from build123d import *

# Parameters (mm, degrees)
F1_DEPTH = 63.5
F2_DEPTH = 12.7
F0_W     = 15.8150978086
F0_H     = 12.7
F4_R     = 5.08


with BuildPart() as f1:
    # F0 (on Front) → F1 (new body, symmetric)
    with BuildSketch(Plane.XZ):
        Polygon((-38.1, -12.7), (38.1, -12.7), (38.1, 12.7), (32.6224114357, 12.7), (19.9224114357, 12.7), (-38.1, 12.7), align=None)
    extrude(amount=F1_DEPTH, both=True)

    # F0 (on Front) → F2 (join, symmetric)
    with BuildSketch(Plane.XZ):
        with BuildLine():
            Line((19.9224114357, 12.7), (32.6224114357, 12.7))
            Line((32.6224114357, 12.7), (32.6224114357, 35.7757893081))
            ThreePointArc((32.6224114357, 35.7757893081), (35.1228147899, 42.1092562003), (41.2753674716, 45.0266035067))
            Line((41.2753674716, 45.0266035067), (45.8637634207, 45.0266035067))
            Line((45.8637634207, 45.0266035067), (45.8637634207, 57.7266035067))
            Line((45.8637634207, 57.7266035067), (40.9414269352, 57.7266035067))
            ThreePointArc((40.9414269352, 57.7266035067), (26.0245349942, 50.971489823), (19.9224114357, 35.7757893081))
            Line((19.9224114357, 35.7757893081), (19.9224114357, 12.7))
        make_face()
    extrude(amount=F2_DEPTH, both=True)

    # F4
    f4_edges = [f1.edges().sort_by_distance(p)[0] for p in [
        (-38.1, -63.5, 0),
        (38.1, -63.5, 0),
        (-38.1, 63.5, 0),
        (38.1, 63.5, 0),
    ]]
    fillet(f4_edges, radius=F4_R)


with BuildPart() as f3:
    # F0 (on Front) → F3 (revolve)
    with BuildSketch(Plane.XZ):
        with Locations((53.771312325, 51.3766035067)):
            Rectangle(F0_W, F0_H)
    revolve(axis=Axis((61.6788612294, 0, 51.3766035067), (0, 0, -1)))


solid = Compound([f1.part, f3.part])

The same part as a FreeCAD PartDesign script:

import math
import FreeCAD as App
import Part
import Sketcher
from FreeCAD import Vector
Q = App.Units.Quantity


def edges_at(feature, points):
    """Names of the edges that pass closest to the given points."""
    edges = feature.Shape.Edges
    near = lambda p: min(range(len(edges)), key=lambda i: edges[i].distToShape(Part.Vertex(*p))[0])
    return sorted({f"Edge{near(p) + 1}" for p in points})


def add_polygon(sketch, points):
    """Adds a closed chain of lines whose ends are joined by coincident constraints."""
    first, n = sketch.GeometryCount, len(points)
    for a, b in zip(points, points[1:] + points[:1]):
        sketch.addGeometry(Part.LineSegment(App.Vector(*a, 0), App.Vector(*b, 0)), False)
    for i in range(n):
        sketch.addConstraint(Sketcher.Constraint("Coincident", first + i, 2, first + (i + 1) % n, 1))

doc = App.newDocument("Part")
body = doc.addObject("PartDesign::Body", "Body")

# Sketch on XZ plane
sketch1 = body.newObject("Sketcher::SketchObject", "Sketch")
sketch1.AttachmentSupport = (doc.getObject("XZ_Plane"), [""])
sketch1.MapMode = "FlatFace"
add_polygon(sketch1, [(-38, -13), (38, -13), (38, 13), (-38, 13)])  # lines 0-3
sketch1.addConstraint([
    Sketcher.Constraint("Horizontal", 0),
    Sketcher.Constraint("Vertical", 1),
    Sketcher.Constraint("Horizontal", 2),
    Sketcher.Constraint("Vertical", 3),
    Sketcher.Constraint("Symmetric", 0, 2, 2, 2, -1, 1),
    Sketcher.Constraint("DistanceX", 0, 1, 0, 2, Q("3 in")),
    Sketcher.Constraint("DistanceY", 1, 1, 1, 2, Q("1 in")),
])
pad1 = body.newObject("PartDesign::Pad", "Pad")
pad1.Profile = sketch1
pad1.Length = Q("5 in")
pad1.Midplane = True

# Sketch on XZ plane
sketch2 = body.newObject("Sketcher::SketchObject", "Sketch001")
sketch2.AttachmentSupport = (doc.getObject("XZ_Plane"), [""])
sketch2.MapMode = "FlatFace"
sketch2.addGeometry([
    Part.LineSegment(Vector(19.9, 12.7, 0), Vector(32.6, 12.7, 0)),  # 0
    Part.LineSegment(Vector(32.6, 12.7, 0), Vector(32.6, 35.8, 0)),  # 1
    Part.ArcOfCircle(Part.Circle(Vector(41.9, 35.8, 0), Vector(0, 0, 1), 9.3), math.radians(94), math.radians(180)),  # 2
    Part.LineSegment(Vector(41.3, 45, 0), Vector(45.9, 45, 0)),  # 3
    Part.LineSegment(Vector(45.9, 45, 0), Vector(45.9, 57.7, 0)),  # 4
    Part.LineSegment(Vector(45.9, 57.7, 0), Vector(40.9, 57.7, 0)),  # 5
    Part.ArcOfCircle(Part.Circle(Vector(41.9, 35.8, 0), Vector(0, 0, 1), 22), math.radians(92), math.radians(180)),  # 6
    Part.LineSegment(Vector(19.9, 35.8, 0), Vector(19.9, 12.7, 0)),  # 7
], False)
sketch2.addConstraint([
    Sketcher.Constraint("Coincident", 0, 2, 1, 1),
    Sketcher.Constraint("Tangent", 1, 2, 2, 2),
    Sketcher.Constraint("Coincident", 2, 1, 3, 1),
    Sketcher.Constraint("Coincident", 3, 2, 4, 1),
    Sketcher.Constraint("Coincident", 4, 2, 5, 1),
    Sketcher.Constraint("Coincident", 5, 2, 6, 1),
    Sketcher.Constraint("Tangent", 6, 2, 7, 1),
    Sketcher.Constraint("Coincident", 7, 2, 0, 1),
    Sketcher.Constraint("Horizontal", 0),
    Sketcher.Constraint("Vertical", 1),
    Sketcher.Constraint("Horizontal", 3),
    Sketcher.Constraint("Vertical", 4),
    Sketcher.Constraint("Horizontal", 5),
    Sketcher.Constraint("Vertical", 7),
    Sketcher.Constraint("Coincident", 6, 3, 2, 3),
    Sketcher.Constraint("Equal", 0, 4),
    Sketcher.Constraint("DistanceX", 0, 1, 0, 2, Q("0.5 in")),
    Sketcher.Constraint("DistanceY", -1, 1, 0, 2, Q("0.5 in")),
    Sketcher.Constraint("Radius", 2, 9.271468),
    Sketcher.Constraint("DistanceY", 1, 1, 1, 2, 23.075789),
    Sketcher.Constraint("DistanceX", 3, 1, 3, 2, 4.588396),
    Sketcher.Constraint("DistanceX", 5, 2, 5, 1, 4.922336),
    Sketcher.Constraint("DistanceX", -1, 1, 2, 3, 41.89388),
])
pad2 = body.newObject("PartDesign::Pad", "Pad001")
pad2.Profile = sketch2
pad2.Length = Q("1 in")
pad2.Midplane = True
doc.recompute()

fillet = body.newObject("PartDesign::Fillet", "Fillet")
fillet.Base = (pad2, edges_at(pad2, [
    (-38.1, -63.5, 0),
    (38.1, -63.5, 0),
    (-38.1, 63.5, 0),
    (38.1, 63.5, 0),
]))
fillet.Radius = Q("0.2 in")
body2 = doc.addObject("PartDesign::Body", "Body001")

# Sketch on XZ plane
sketch3 = body2.newObject("Sketcher::SketchObject", "Sketch002")
sketch3.AttachmentSupport = (doc.getObject("XZ_Plane001"), [""])
sketch3.MapMode = "FlatFace"
add_polygon(sketch3, [(46, 58), (46, 45), (62, 45), (62, 58)])  # lines 0-3
sketch3.addGeometry(Part.LineSegment(Vector(62, 58, 0), Vector(62, 45, 0)), True)  # axis
sketch3.addConstraint([
    Sketcher.Constraint("Vertical", 0),
    Sketcher.Constraint("Horizontal", 1),
    Sketcher.Constraint("Vertical", 2),
    Sketcher.Constraint("Horizontal", 3),
    Sketcher.Constraint("Vertical", 4),
    Sketcher.Constraint("Coincident", 4, 1, 2, 2),
    Sketcher.Constraint("Horizontal", 0, 2, 4, 2),
    Sketcher.Constraint("DistanceY", 0, 2, 0, 1, Q("0.5 in")),
    Sketcher.Constraint("DistanceX", 1, 1, 1, 2, 15.815098),
    Sketcher.Constraint("DistanceX", -1, 1, 1, 2, 61.678861),
    Sketcher.Constraint("DistanceY", -1, 1, 0, 2, 45.026604),
])
revolution = body2.newObject("PartDesign::Revolution", "Revolution")
revolution.Profile = sketch3
revolution.ReferenceAxis = (sketch3, ["Axis0"])
revolution.Angle = 360

doc.recompute()
